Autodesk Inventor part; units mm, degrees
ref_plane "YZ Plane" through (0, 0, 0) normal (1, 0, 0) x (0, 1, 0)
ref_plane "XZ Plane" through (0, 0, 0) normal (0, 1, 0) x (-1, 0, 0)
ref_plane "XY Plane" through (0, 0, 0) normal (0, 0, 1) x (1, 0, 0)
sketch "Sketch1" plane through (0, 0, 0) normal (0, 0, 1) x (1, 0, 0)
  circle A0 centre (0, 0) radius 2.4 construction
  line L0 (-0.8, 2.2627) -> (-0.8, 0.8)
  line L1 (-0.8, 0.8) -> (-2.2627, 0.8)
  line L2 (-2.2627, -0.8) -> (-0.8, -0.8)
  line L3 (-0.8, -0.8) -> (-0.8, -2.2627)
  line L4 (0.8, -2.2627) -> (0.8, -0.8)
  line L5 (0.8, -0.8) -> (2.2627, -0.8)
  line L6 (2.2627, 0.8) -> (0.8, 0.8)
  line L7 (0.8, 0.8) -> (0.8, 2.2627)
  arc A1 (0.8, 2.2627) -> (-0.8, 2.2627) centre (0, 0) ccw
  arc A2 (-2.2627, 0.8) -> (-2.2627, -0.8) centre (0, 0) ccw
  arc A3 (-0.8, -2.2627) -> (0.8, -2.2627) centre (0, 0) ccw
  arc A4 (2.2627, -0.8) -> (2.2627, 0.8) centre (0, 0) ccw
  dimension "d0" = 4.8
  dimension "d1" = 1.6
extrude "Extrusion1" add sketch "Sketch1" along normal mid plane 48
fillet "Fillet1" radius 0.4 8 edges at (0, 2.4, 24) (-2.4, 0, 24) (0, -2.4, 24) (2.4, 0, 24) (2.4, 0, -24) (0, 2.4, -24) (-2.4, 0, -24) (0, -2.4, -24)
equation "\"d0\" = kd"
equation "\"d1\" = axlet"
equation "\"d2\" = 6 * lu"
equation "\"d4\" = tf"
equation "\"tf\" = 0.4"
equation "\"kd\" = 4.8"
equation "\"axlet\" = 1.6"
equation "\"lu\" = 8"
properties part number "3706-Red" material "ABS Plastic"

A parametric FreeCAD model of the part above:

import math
import FreeCAD as App
import Part
import Sketcher

V = App.Vector


def edges_at(feature, points):
    """Names of the edges that pass closest to the given points."""
    edges = feature.Shape.Edges
    near = lambda p: min(range(len(edges)), key=lambda i: edges[i].distToShape(Part.Vertex(*p))[0])
    return sorted({f"Edge{near(p) + 1}" for p in points})

doc = App.newDocument("Part")
body = doc.addObject("PartDesign::Body", "Body")

sketch1 = body.newObject("Sketcher::SketchObject", "Sketch")
sketch1.AttachmentSupport = (doc.getObject("XY_Plane"), [""])
sketch1.MapMode = "FlatFace"
sketch1.addGeometry([
    Part.ArcOfCircle(Part.Circle(V(0, 0, 0), V(0, 0, 1), 2.4), math.radians(71), math.radians(109)),
    Part.LineSegment(V(-0.8, 2.3, 0), V(-0.8, 0.8, 0)),
    Part.LineSegment(V(-0.8, 0.8, 0), V(-2.3, 0.8, 0)),
    Part.ArcOfCircle(Part.Circle(V(0, 0, 0), V(0, 0, 1), 2.4), math.radians(161), math.radians(199)),
    Part.LineSegment(V(-2.3, -0.8, 0), V(-0.8, -0.8, 0)),
    Part.LineSegment(V(-0.8, -0.8, 0), V(-0.8, -2.3, 0)),
    Part.ArcOfCircle(Part.Circle(V(0, 0, 0), V(0, 0, 1), 2.4), math.radians(-109), math.radians(-71)),
    Part.LineSegment(V(0.8, -2.3, 0), V(0.8, -0.8, 0)),
    Part.LineSegment(V(0.8, -0.8, 0), V(2.3, -0.8, 0)),
    Part.ArcOfCircle(Part.Circle(V(0, 0, 0), V(0, 0, 1), 2.4), math.radians(-19), math.radians(19)),
    Part.LineSegment(V(2.3, 0.8, 0), V(0.8, 0.8, 0)),
    Part.LineSegment(V(0.8, 0.8, 0), V(0.8, 2.3, 0)),
], False)
sketch1.addConstraint([
    Sketcher.Constraint("Coincident", 0, 2, 1, 1),
    Sketcher.Constraint("Coincident", 1, 2, 2, 1),
    Sketcher.Constraint("Coincident", 2, 2, 3, 1),
    Sketcher.Constraint("Coincident", 3, 2, 4, 1),
    Sketcher.Constraint("Coincident", 4, 2, 5, 1),
    Sketcher.Constraint("Coincident", 5, 2, 6, 1),
    Sketcher.Constraint("Coincident", 6, 2, 7, 1),
    Sketcher.Constraint("Coincident", 7, 2, 8, 1),
    Sketcher.Constraint("Coincident", 8, 2, 9, 1),
    Sketcher.Constraint("Coincident", 9, 2, 10, 1),
    Sketcher.Constraint("Coincident", 10, 2, 11, 1),
    Sketcher.Constraint("Coincident", 11, 2, 0, 1),
    Sketcher.Constraint("Vertical", 1),
    Sketcher.Constraint("Horizontal", 2),
    Sketcher.Constraint("Horizontal", 4),
    Sketcher.Constraint("Vertical", 5),
    Sketcher.Constraint("Vertical", 7),
    Sketcher.Constraint("Horizontal", 8),
    Sketcher.Constraint("Horizontal", 10),
    Sketcher.Constraint("Vertical", 11),
    Sketcher.Constraint("Coincident", 0, 3, -1, 1),
    Sketcher.Constraint("Coincident", 3, 3, -1, 1),
    Sketcher.Constraint("Coincident", 6, 3, -1, 1),
    Sketcher.Constraint("Coincident", 9, 3, -1, 1),
    Sketcher.Constraint("Equal", 0, 3),
    Sketcher.Constraint("Equal", 3, 6),
    Sketcher.Constraint("Equal", 6, 9),
    Sketcher.Constraint("Symmetric", 1, 2, 7, 2, -1, 1),
    Sketcher.Constraint("Symmetric", 4, 2, 10, 2, -1, 1),
    Sketcher.Constraint("Symmetric", 4, 2, 7, 2, -2),
    Sketcher.Constraint("Equal", 10, 1),
    Sketcher.Constraint("Radius", 0, 2.4),
    Sketcher.Constraint("DistanceY", 3, 2, 2, 2, 1.6),
])
pad1 = body.newObject("PartDesign::Pad", "Pad")
pad1.Profile = sketch1
pad1.Length = 48
pad1.Midplane = True
doc.recompute()

fillet = body.newObject("PartDesign::Fillet", "Fillet")
fillet.Base = (pad1, edges_at(pad1, [
    (0, 2.4, 24),
    (-2.4, 0, 24),
    (0, -2.4, 24),
    (2.4, 0, 24),
    (2.4, 0, -24),
    (0, 2.4, -24),
    (-2.4, 0, -24),
    (0, -2.4, -24),
]))
fillet.Radius = 0.4

doc.recompute()
